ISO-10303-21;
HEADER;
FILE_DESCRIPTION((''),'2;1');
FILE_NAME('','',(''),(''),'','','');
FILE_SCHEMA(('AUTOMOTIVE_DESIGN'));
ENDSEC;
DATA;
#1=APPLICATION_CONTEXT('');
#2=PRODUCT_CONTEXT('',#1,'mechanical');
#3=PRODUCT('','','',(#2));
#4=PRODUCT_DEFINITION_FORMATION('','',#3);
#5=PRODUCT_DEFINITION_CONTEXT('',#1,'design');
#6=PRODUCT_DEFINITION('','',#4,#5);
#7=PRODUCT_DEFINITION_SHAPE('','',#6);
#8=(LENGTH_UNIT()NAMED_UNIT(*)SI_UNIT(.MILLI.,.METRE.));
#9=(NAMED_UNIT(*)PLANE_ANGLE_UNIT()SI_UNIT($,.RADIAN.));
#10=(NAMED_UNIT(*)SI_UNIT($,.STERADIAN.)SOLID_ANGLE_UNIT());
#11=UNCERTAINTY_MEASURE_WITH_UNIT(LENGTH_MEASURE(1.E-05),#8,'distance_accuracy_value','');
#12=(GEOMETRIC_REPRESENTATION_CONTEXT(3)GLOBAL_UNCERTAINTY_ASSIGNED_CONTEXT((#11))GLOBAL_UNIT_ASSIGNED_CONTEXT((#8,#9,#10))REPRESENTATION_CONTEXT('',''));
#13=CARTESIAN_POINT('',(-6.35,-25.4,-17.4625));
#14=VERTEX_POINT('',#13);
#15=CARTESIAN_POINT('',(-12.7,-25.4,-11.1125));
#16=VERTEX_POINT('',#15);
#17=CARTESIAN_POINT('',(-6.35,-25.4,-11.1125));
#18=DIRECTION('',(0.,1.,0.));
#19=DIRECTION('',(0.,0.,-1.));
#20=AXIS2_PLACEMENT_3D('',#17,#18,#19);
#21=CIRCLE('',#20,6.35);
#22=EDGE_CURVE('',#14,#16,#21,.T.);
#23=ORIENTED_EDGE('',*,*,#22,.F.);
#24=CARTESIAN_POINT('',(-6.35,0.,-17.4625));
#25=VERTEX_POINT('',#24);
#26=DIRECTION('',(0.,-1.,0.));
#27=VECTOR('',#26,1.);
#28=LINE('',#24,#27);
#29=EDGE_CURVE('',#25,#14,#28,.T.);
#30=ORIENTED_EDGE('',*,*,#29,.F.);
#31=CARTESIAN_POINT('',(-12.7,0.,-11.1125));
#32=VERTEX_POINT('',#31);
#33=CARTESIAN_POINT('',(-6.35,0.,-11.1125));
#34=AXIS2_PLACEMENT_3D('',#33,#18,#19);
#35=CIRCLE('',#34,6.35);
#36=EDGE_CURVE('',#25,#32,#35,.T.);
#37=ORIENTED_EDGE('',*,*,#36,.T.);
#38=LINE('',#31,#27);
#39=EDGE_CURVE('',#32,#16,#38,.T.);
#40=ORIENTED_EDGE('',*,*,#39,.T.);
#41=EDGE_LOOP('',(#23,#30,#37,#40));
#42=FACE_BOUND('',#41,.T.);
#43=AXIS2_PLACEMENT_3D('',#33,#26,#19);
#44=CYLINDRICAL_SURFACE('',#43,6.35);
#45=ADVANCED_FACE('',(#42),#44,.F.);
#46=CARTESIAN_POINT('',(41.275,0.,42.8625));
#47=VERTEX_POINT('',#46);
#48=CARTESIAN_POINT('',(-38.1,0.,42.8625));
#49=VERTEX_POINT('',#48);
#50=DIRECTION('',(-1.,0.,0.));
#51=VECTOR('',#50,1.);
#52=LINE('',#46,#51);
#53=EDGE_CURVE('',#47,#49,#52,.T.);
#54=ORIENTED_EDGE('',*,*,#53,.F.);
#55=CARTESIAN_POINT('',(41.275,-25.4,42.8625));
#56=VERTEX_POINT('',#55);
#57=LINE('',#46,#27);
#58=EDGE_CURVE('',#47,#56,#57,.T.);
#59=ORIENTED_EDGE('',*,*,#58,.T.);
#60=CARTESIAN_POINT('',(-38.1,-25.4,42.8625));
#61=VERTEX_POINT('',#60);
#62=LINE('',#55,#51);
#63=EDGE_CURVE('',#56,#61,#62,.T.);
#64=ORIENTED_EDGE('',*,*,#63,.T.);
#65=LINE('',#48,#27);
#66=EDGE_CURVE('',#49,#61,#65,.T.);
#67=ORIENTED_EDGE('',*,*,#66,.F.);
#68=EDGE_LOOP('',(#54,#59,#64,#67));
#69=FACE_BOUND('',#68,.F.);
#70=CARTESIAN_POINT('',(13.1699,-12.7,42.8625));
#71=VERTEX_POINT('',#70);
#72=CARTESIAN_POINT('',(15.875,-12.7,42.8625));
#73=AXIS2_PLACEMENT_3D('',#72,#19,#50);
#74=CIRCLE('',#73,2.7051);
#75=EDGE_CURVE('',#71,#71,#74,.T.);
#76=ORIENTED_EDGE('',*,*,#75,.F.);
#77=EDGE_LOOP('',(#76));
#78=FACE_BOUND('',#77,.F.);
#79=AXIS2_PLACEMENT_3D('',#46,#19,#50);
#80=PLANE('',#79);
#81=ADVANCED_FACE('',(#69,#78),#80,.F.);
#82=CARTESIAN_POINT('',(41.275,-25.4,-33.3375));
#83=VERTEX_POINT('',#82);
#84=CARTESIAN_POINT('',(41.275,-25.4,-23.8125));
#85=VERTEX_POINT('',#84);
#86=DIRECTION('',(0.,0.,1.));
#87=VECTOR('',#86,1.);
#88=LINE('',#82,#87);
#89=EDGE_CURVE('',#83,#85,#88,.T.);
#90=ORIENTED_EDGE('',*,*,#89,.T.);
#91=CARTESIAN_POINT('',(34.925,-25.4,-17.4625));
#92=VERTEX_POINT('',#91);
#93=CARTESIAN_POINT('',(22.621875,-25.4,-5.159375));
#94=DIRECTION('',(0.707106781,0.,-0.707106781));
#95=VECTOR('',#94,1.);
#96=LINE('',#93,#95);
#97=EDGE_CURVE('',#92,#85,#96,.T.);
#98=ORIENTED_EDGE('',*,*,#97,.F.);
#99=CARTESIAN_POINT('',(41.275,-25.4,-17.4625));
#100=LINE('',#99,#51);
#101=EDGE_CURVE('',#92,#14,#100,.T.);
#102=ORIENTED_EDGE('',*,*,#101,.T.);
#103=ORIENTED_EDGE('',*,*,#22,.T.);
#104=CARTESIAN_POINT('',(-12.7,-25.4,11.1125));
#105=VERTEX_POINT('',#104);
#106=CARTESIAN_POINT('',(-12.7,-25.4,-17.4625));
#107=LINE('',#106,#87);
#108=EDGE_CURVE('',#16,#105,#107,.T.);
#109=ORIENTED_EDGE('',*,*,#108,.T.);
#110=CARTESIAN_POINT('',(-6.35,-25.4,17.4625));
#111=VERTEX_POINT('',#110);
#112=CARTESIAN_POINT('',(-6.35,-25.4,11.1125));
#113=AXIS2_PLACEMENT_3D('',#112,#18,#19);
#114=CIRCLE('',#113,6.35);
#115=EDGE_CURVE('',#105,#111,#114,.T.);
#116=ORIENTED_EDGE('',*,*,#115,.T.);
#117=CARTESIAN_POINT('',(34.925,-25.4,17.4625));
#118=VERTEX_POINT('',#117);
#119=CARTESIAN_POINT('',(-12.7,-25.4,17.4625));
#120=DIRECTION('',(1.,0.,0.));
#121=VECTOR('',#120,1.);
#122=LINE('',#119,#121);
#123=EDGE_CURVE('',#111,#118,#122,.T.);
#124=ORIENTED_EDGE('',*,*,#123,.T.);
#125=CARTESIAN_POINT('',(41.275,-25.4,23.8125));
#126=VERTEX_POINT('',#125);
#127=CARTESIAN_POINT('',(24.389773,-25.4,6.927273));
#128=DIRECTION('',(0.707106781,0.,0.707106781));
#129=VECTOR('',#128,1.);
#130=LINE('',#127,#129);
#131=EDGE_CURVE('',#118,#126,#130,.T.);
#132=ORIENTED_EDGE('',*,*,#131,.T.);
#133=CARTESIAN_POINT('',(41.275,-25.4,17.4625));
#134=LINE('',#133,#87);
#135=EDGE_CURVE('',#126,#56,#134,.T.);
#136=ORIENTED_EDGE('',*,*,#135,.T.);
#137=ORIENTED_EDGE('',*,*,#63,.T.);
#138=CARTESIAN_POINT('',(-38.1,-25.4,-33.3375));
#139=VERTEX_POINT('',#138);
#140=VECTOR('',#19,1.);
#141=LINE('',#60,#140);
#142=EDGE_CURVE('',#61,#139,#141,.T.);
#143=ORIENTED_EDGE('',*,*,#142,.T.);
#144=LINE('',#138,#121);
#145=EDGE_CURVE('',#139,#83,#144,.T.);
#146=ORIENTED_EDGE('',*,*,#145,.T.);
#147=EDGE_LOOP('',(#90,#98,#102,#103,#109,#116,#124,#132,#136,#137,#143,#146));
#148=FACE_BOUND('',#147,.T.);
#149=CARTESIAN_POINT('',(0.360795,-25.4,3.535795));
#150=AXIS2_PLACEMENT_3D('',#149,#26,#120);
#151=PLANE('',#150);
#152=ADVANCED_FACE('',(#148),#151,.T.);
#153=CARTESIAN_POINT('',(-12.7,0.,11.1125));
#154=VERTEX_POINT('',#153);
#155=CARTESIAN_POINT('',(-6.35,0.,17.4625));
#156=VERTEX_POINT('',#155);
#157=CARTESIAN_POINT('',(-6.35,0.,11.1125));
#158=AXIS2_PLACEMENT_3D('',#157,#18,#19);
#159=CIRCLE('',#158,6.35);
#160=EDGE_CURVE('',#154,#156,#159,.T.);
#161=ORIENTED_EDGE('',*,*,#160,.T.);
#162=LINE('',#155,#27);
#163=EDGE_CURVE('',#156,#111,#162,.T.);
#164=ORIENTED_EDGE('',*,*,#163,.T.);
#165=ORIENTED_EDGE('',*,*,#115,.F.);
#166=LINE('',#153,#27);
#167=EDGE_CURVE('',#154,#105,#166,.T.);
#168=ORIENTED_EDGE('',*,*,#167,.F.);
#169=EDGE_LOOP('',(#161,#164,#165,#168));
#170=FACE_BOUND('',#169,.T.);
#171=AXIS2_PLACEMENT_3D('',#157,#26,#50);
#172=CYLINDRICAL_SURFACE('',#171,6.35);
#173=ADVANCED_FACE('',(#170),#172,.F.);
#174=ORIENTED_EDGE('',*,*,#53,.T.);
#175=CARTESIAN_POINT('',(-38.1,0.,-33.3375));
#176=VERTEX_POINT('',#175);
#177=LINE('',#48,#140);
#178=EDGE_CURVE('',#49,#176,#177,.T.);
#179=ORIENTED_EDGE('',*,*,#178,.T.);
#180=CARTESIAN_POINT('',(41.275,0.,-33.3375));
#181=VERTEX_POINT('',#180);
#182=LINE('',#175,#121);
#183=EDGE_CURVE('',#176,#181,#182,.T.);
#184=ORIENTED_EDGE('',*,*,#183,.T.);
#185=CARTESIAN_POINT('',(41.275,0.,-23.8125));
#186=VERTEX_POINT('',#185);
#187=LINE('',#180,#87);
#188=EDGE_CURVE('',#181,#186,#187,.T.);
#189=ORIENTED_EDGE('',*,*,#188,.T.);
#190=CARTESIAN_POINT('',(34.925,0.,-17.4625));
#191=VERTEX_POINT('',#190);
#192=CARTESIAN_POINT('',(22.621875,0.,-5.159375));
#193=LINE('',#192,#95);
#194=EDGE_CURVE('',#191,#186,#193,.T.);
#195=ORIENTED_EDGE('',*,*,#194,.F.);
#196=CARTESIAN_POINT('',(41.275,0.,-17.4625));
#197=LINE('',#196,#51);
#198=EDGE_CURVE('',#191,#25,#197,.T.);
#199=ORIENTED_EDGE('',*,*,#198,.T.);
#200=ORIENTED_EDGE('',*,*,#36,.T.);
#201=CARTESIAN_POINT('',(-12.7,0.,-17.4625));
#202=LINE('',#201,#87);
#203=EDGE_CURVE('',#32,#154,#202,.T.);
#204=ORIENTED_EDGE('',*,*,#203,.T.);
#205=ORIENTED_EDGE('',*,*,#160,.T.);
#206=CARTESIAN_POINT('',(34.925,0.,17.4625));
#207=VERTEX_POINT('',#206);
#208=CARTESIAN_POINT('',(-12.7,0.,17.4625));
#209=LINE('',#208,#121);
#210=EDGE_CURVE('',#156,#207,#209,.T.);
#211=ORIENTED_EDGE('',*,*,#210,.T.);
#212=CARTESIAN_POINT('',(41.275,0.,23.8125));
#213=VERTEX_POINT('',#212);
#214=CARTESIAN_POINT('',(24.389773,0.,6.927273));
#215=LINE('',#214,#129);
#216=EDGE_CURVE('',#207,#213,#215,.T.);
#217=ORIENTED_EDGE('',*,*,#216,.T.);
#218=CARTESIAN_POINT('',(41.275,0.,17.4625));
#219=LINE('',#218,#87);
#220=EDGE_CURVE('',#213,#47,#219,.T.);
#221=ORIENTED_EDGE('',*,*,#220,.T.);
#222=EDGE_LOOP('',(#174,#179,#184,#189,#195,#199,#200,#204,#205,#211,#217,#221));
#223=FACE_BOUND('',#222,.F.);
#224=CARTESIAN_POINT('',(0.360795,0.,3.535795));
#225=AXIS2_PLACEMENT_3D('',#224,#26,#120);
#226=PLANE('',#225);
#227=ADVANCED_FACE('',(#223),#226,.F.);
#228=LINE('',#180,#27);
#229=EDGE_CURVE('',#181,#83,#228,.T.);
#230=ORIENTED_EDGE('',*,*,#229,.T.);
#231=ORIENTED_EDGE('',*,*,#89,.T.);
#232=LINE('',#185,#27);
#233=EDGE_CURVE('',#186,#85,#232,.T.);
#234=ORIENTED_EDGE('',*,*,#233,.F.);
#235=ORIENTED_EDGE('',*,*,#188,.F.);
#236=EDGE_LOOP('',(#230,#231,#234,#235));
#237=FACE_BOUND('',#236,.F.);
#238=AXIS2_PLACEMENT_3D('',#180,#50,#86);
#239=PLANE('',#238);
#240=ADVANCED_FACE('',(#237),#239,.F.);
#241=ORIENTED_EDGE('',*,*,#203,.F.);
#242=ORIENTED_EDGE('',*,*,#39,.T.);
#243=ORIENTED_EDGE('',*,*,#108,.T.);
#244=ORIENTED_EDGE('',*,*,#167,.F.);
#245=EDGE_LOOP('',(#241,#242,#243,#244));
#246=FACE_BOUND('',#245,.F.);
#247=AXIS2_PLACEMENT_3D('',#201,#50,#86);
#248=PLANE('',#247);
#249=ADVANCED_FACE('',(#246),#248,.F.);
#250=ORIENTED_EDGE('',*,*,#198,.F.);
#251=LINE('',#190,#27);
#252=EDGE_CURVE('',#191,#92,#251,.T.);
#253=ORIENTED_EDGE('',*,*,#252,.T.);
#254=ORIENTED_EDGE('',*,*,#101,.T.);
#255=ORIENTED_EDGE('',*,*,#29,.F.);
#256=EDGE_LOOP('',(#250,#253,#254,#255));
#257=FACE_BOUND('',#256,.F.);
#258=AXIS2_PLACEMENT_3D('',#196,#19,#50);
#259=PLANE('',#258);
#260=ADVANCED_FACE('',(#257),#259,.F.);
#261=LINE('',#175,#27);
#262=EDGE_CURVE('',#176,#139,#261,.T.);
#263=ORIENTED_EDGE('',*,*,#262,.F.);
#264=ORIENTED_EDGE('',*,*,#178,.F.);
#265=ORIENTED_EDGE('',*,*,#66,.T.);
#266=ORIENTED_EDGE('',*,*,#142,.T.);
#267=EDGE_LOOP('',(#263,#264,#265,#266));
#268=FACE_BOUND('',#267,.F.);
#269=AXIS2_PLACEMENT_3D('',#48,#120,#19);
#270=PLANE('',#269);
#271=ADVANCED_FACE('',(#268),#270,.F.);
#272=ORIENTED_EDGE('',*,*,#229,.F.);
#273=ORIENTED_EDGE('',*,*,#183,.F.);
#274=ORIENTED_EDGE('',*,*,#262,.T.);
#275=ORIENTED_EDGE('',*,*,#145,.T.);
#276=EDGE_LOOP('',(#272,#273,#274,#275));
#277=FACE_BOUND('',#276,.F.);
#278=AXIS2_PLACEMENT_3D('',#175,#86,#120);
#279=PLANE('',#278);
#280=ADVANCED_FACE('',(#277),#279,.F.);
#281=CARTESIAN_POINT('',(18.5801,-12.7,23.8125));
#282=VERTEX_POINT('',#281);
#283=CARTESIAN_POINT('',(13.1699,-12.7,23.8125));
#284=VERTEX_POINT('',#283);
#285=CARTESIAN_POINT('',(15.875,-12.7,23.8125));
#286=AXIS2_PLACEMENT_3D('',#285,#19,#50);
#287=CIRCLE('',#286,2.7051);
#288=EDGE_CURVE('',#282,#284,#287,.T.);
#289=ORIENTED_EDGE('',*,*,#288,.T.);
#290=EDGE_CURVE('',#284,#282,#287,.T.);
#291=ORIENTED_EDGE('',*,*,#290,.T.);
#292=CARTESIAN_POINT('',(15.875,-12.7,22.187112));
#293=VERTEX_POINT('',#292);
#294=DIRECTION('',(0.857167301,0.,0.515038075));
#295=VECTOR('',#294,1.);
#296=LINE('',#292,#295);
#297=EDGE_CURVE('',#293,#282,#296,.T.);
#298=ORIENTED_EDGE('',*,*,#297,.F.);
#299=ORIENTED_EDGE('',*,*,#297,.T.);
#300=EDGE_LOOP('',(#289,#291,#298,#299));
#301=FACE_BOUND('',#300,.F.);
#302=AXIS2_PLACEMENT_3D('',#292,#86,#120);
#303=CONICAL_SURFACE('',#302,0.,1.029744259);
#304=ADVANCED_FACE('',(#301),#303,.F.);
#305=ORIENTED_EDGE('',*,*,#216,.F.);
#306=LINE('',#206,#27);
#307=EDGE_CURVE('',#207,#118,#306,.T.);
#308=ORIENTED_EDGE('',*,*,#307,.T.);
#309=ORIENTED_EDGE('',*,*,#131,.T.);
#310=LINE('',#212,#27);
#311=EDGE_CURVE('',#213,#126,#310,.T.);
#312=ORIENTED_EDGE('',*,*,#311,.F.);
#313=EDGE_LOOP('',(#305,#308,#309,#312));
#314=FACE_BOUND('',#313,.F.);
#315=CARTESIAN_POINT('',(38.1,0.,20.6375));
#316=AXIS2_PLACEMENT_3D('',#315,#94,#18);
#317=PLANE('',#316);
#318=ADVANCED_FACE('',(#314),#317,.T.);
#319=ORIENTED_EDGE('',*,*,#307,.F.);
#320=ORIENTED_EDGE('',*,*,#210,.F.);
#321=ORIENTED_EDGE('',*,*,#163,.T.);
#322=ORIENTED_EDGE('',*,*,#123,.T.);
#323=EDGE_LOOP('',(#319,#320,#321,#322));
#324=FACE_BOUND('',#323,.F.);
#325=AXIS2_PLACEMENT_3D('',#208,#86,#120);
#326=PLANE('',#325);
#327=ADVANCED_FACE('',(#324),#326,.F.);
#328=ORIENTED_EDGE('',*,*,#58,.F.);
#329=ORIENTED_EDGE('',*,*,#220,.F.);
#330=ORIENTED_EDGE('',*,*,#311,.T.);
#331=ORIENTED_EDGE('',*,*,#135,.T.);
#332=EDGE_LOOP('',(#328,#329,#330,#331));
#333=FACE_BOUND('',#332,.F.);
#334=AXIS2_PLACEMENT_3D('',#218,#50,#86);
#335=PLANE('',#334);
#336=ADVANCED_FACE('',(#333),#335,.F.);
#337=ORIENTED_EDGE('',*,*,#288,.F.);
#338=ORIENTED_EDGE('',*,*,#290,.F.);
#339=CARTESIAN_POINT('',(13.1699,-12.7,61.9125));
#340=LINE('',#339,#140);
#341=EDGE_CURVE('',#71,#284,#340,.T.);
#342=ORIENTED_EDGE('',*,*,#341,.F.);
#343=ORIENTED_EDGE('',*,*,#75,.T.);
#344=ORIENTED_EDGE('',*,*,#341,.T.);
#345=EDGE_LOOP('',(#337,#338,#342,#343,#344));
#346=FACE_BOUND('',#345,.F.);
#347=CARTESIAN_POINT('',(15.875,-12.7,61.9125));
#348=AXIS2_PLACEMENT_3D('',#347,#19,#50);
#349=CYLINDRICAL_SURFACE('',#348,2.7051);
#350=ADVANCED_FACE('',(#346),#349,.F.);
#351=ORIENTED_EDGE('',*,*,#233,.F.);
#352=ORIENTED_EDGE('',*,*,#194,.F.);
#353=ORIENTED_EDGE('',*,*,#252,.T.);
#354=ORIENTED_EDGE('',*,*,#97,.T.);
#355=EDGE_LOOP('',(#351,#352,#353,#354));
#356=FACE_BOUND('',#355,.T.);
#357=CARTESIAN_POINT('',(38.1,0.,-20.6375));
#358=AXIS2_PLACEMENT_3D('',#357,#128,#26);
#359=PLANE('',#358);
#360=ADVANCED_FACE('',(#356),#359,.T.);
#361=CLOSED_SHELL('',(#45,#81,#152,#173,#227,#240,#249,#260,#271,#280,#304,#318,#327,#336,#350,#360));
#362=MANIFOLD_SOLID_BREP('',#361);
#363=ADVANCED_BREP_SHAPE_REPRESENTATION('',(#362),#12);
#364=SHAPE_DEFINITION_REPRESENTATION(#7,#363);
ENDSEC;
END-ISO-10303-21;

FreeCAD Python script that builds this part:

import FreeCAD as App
import Part
import Sketcher

V = App.Vector
Q = App.Units.Quantity


def edges_at(feature, points):
    """Names of the edges that pass closest to the given points."""
    edges = feature.Shape.Edges
    near = lambda p: min(range(len(edges)), key=lambda i: edges[i].distToShape(Part.Vertex(*p))[0])
    return sorted({f"Edge{near(p) + 1}" for p in points})


def add_polygon(sketch, points):
    """Adds a closed chain of lines whose ends are joined by coincident constraints."""
    first, n = sketch.GeometryCount, len(points)
    for a, b in zip(points, points[1:] + points[:1]):
        sketch.addGeometry(Part.LineSegment(App.Vector(*a, 0), App.Vector(*b, 0)), False)
    for i in range(n):
        sketch.addConstraint(Sketcher.Constraint("Coincident", first + i, 2, first + (i + 1) % n, 1))

doc = App.newDocument("Part")
params = doc.addObject("Spreadsheet::Sheet", "Params")
for row, (alias, value) in enumerate([
    ("sketch1_height", "3 in"),
    ("sketch1_height2", "1 in"),
    ("sketch1_width", "3.125 in"),
    ("sketch1_height3", "0.625 in"),
    ("pad1_length", "1 in"),
    ("fillet_radius", "0.25 in"),
    ("chamfer_size", "0.25 in"),
    ("sketch2_diameter", "0.213 in"),
    ("hole_diameter", "0.213 in"),
    ("hole_depth", "0.75 in"),
], start=1):
    params.set(f"A{row}", alias)
    params.set(f"B{row}", "=" + value)
    params.setAlias(f"B{row}", alias)

body = doc.addObject("PartDesign::Body", "Body")

sketch1 = doc.addObject("Sketcher::SketchObject", "Sketch")
body.addObject(sketch1)
sketch1.AttachmentSupport = (doc.XZ_Plane, [""])
sketch1.MapMode = "FlatFace"
add_polygon(sketch1, [(41, 43), (-38, 43), (-38, -33), (41, -33), (41, -17), (-13, -17), (-13, 17), (41, 17)])
sketch1.addConstraint([
    Sketcher.Constraint("Horizontal", 0),
    Sketcher.Constraint("Vertical", 1),
    Sketcher.Constraint("Horizontal", 2),
    Sketcher.Constraint("Vertical", 3),
    Sketcher.Constraint("Horizontal", 4),
    Sketcher.Constraint("Vertical", 5),
    Sketcher.Constraint("Horizontal", 6),
    Sketcher.Constraint("Vertical", 7),
    Sketcher.Constraint("Symmetric", 3, 2, 6, 2, -1),
    Sketcher.Constraint("DistanceY", 1, 2, 1, 1, Q("3 in")),
    Sketcher.Constraint("DistanceY", 7, 1, 7, 2, Q("1 in")),
    Sketcher.Constraint("DistanceX", 1, 2, 4, 2, Q("1 in")),
    Sketcher.Constraint("DistanceX", 0, 2, -1, 1, Q("1.5 in")),
    Sketcher.Constraint("DistanceX", 0, 2, 0, 1, Q("3.125 in")),
    Sketcher.Constraint("DistanceY", 3, 1, 3, 2, Q("0.625 in")),
])
sketch1.setExpression("Constraints[17]", "Params.sketch1_height")
sketch1.setExpression("Constraints[18]", "Params.sketch1_height2")
sketch1.setExpression("Constraints[21]", "Params.sketch1_width")
sketch1.setExpression("Constraints[22]", "Params.sketch1_height3")
pad1 = doc.addObject("PartDesign::Pad", "Pad")
body.addObject(pad1)
pad1.Profile = sketch1
pad1.setExpression("Length", "Params.pad1_length")
doc.recompute()

fillet = doc.addObject("PartDesign::Fillet", "Fillet")
body.addObject(fillet)
fillet.Base = (pad1, edges_at(pad1, [(-12.7, -12.7, 17.462), (-12.7, -12.7, -17.462)]))
fillet.setExpression("Radius", "Params.fillet_radius")
doc.recompute()

chamfer = doc.addObject("PartDesign::Chamfer", "Chamfer")
body.addObject(chamfer)
chamfer.Base = (fillet, edges_at(fillet, [(41.275, -12.7, -17.462), (41.275, -12.7, 17.462)]))
chamfer.setExpression("Size", "Params.chamfer_size")

sketch2 = doc.addObject("Sketcher::SketchObject", "Sketch001")
body.addObject(sketch2)
sketch2.AttachmentSupport = (doc.XY_Plane, [""])
sketch2.MapMode = "FlatFace"
sketch2.AttachmentOffset = App.Placement(V(0, 0, 1.6875 * 25.4), App.Rotation())
sketch2.addGeometry(Part.Circle(V(15.9, -12.7, 0), V(0, 0, 1), 2.7), False)
sketch2.addConstraint([
    Sketcher.Constraint("Diameter", 0, Q("0.213 in")),
    Sketcher.Constraint("DistanceY", 0, 3, -1, 1, Q("0.5 in")),
    Sketcher.Constraint("DistanceX", -1, 1, 0, 3, Q("0.625 in")),
])
sketch2.setExpression("Constraints[0]", "Params.sketch2_diameter")
doc.recompute()
hole = doc.addObject("PartDesign::Hole", "Hole")
body.addObject(hole)
hole.Profile = sketch2
hole.ThreadType = "None"
hole.setExpression("Diameter", "Params.hole_diameter")
hole.DepthType = "Dimension"
hole.setExpression("Depth", "Params.hole_depth")
hole.DrillPoint = "Angled"
hole.DrillPointAngle = 118

doc.recompute()
